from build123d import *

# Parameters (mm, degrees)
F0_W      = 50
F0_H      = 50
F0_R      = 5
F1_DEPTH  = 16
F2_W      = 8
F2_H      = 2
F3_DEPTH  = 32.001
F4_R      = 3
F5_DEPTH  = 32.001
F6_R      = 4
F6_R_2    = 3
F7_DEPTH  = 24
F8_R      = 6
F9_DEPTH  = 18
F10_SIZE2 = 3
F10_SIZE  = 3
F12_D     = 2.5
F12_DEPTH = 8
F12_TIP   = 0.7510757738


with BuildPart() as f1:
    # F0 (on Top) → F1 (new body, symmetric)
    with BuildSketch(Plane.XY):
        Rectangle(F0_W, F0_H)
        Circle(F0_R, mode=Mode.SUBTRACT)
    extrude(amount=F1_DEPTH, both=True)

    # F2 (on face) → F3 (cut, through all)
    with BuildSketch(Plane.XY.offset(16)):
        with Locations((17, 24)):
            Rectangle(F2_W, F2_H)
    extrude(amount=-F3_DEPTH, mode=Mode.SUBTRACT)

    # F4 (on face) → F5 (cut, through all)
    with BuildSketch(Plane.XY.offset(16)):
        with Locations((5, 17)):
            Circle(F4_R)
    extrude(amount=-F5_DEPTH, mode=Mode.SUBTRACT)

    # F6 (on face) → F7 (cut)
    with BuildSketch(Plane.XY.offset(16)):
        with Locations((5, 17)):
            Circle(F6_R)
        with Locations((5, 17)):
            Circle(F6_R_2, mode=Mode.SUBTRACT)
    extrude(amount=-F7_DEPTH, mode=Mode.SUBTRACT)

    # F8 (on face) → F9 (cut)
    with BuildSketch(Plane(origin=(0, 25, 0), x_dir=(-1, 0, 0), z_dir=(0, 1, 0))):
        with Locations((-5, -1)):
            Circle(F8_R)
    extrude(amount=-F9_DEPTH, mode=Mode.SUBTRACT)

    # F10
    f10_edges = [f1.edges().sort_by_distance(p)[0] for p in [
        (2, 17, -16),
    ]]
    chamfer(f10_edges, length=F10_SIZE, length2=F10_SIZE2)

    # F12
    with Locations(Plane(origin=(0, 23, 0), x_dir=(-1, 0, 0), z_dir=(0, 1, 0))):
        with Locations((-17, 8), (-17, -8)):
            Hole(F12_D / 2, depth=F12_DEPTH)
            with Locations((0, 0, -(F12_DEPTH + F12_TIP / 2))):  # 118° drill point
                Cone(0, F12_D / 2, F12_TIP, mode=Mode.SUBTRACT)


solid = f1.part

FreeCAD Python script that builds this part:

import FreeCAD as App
import Part
import Sketcher
Q = App.Units.Quantity


def edges_at(feature, points):
    """Names of the edges that pass closest to the given points."""
    edges = feature.Shape.Edges
    near = lambda p: min(range(len(edges)), key=lambda i: edges[i].distToShape(Part.Vertex(*p))[0])
    return sorted({f"Edge{near(p) + 1}" for p in points})


def add_polygon(sketch, points):
    """Adds a closed chain of lines whose ends are joined by coincident constraints."""
    first, n = sketch.GeometryCount, len(points)
    for a, b in zip(points, points[1:] + points[:1]):
        sketch.addGeometry(Part.LineSegment(App.Vector(*a, 0), App.Vector(*b, 0)), False)
    for i in range(n):
        sketch.addConstraint(Sketcher.Constraint("Coincident", first + i, 2, first + (i + 1) % n, 1))

doc = App.newDocument("Part")
params = doc.addObject("Spreadsheet::Sheet", "Params")
for row, (alias, value) in enumerate([
    ("sketch1_diameter", "10 mm"),
    ("sketch1_width", "50 mm"),
    ("pad1_length", "32 mm"),
    ("sketch2_width", "8 mm"),
    ("sketch2_height", "2 mm"),
    ("sketch3_diameter", "6 mm"),
    ("sketch4_diameter", "8 mm"),
    ("sketch4_diameter2", "6 mm"),
    ("pocket3_length", "24 mm"),
    ("sketch5_diameter", "12 mm"),
    ("pocket4_length", "18 mm"),
    ("chamfer_size", "3 mm"),
    ("chamfer_size2", "3 mm"),
    ("sketch6_diameter", "2.5 mm"),
    ("hole_diameter", "2.5 mm"),
    ("hole_depth", "8 mm"),
], start=1):
    params.set(f"A{row}", alias)
    params.set(f"B{row}", "=" + value)
    params.setAlias(f"B{row}", alias)

body = doc.addObject("PartDesign::Body", "Body")

sketch1 = body.newObject("Sketcher::SketchObject", "Sketch")
sketch1.AttachmentSupport = (doc.getObject("XY_Plane"), [""])
sketch1.MapMode = "FlatFace"
add_polygon(sketch1, [(-25, 25), (-25, -25), (25, -25), (25, 25)])
sketch1.addGeometry(Part.Circle(App.Vector(0, 0, 0), App.Vector(0, 0, 1), 5), False)
sketch1.addConstraint(Sketcher.Constraint("Vertical", 0))
sketch1.addConstraint(Sketcher.Constraint("Horizontal", 1))
sketch1.addConstraint(Sketcher.Constraint("Vertical", 2))
sketch1.addConstraint(Sketcher.Constraint("Horizontal", 3))
sketch1.addConstraint(Sketcher.Constraint("Coincident", 4, 3, -1, 1))
sketch1.addConstraint(Sketcher.Constraint("Symmetric", 0, 2, 2, 2, -1, 1))
sketch1.addConstraint(Sketcher.Constraint("Equal", 3, 0))
sketch1.addConstraint(Sketcher.Constraint("Diameter", 4, Q("10 mm")))
sketch1.addConstraint(Sketcher.Constraint("DistanceX", 1, 1, 1, 2, Q("50 mm")))
sketch1.setExpression("Constraints[11]", "Params.sketch1_diameter")
sketch1.setExpression("Constraints[12]", "Params.sketch1_width")
pad1 = body.newObject("PartDesign::Pad", "Pad")
pad1.Profile = sketch1
pad1.setExpression("Length", "Params.pad1_length")
pad1.Midplane = True

sketch2 = body.newObject("Sketcher::SketchObject", "Sketch001")
sketch2.AttachmentSupport = (doc.getObject("XY_Plane"), [""])
sketch2.MapMode = "FlatFace"
sketch2.AttachmentOffset = App.Placement(App.Vector(0, 0, 16), App.Rotation())
add_polygon(sketch2, [(13, 25), (13, 23), (21, 23), (21, 25)])
sketch2.addConstraint(Sketcher.Constraint("Vertical", 0))
sketch2.addConstraint(Sketcher.Constraint("Horizontal", 1))
sketch2.addConstraint(Sketcher.Constraint("Vertical", 2))
sketch2.addConstraint(Sketcher.Constraint("Horizontal", 3))
sketch2.addConstraint(Sketcher.Constraint("DistanceX", 1, 1, 1, 2, Q("8 mm")))
sketch2.addConstraint(Sketcher.Constraint("DistanceY", 0, 2, 0, 1, Q("2 mm")))
sketch2.addConstraint(Sketcher.Constraint("DistanceX", -1, 1, 0, 2, Q("13 mm")))
sketch2.addConstraint(Sketcher.Constraint("DistanceY", -1, 1, 0, 2, Q("23 mm")))
sketch2.setExpression("Constraints[8]", "Params.sketch2_width")
sketch2.setExpression("Constraints[9]", "Params.sketch2_height")
pocket1 = body.newObject("PartDesign::Pocket", "Pocket")
pocket1.Profile = sketch2
pocket1.Type = "ThroughAll"

sketch3 = body.newObject("Sketcher::SketchObject", "Sketch002")
sketch3.AttachmentSupport = (doc.getObject("XY_Plane"), [""])
sketch3.MapMode = "FlatFace"
sketch3.AttachmentOffset = App.Placement(App.Vector(0, 0, 16), App.Rotation())
sketch3.addGeometry(Part.Circle(App.Vector(5, 17, 0), App.Vector(0, 0, 1), 3), False)
sketch3.addConstraint(Sketcher.Constraint("Diameter", 0, Q("6 mm")))
sketch3.addConstraint(Sketcher.Constraint("DistanceX", -1, 1, 0, 3, Q("5 mm")))
sketch3.addConstraint(Sketcher.Constraint("DistanceY", -1, 1, 0, 3, Q("17 mm")))
sketch3.setExpression("Constraints[0]", "Params.sketch3_diameter")
pocket2 = body.newObject("PartDesign::Pocket", "Pocket001")
pocket2.Profile = sketch3
pocket2.Type = "ThroughAll"

sketch4 = body.newObject("Sketcher::SketchObject", "Sketch003")
sketch4.AttachmentSupport = (doc.getObject("XY_Plane"), [""])
sketch4.MapMode = "FlatFace"
sketch4.AttachmentOffset = App.Placement(App.Vector(0, 0, 16), App.Rotation())
sketch4.addGeometry(Part.Circle(App.Vector(5, 17, 0), App.Vector(0, 0, 1), 4), False)
sketch4.addGeometry(Part.Circle(App.Vector(5, 17, 0), App.Vector(0, 0, 1), 3), False)
sketch4.addConstraint(Sketcher.Constraint("Coincident", 1, 3, 0, 3))
sketch4.addConstraint(Sketcher.Constraint("Diameter", 0, Q("8 mm")))
sketch4.addConstraint(Sketcher.Constraint("Diameter", 1, Q("6 mm")))
sketch4.addConstraint(Sketcher.Constraint("DistanceX", -1, 1, 0, 3, Q("5 mm")))
sketch4.addConstraint(Sketcher.Constraint("DistanceY", -1, 1, 0, 3, Q("17 mm")))
sketch4.setExpression("Constraints[1]", "Params.sketch4_diameter")
sketch4.setExpression("Constraints[2]", "Params.sketch4_diameter2")
pocket3 = body.newObject("PartDesign::Pocket", "Pocket002")
pocket3.Profile = sketch4
pocket3.setExpression("Length", "Params.pocket3_length")

sketch5 = body.newObject("Sketcher::SketchObject", "Sketch004")
sketch5.AttachmentSupport = (doc.getObject("XZ_Plane"), [""])
sketch5.MapMode = "FlatFace"
sketch5.AttachmentOffset = App.Placement(App.Vector(0, 0, -25), App.Rotation())
sketch5.addGeometry(Part.Circle(App.Vector(5, -1, 0), App.Vector(0, 0, 1), 6), False)
sketch5.addConstraint(Sketcher.Constraint("Diameter", 0, Q("12 mm")))
sketch5.addConstraint(Sketcher.Constraint("DistanceX", -1, 1, 0, 3, Q("5 mm")))
sketch5.addConstraint(Sketcher.Constraint("DistanceY", 0, 3, -1, 1, Q("1 mm")))
sketch5.setExpression("Constraints[0]", "Params.sketch5_diameter")
pocket4 = body.newObject("PartDesign::Pocket", "Pocket003")
pocket4.Profile = sketch5
pocket4.setExpression("Length", "Params.pocket4_length")
pocket4.Reversed = True
doc.recompute()

chamfer = body.newObject("PartDesign::Chamfer", "Chamfer")
chamfer.Base = (pocket4, edges_at(pocket4, [(2, 17, -16)]))
chamfer.ChamferType = "Two distances"
chamfer.setExpression("Size", "Params.chamfer_size")
chamfer.setExpression("Size2", "Params.chamfer_size2")

sketch6 = body.newObject("Sketcher::SketchObject", "Sketch005")
sketch6.AttachmentSupport = (doc.getObject("XZ_Plane"), [""])
sketch6.MapMode = "FlatFace"
sketch6.AttachmentOffset = App.Placement(App.Vector(0, 0, -23), App.Rotation())
sketch6.addGeometry(Part.Circle(App.Vector(17, 8, 0), App.Vector(0, 0, 1), 1.2), False)
sketch6.addGeometry(Part.Circle(App.Vector(17, -8, 0), App.Vector(0, 0, 1), 1.2), False)
sketch6.addConstraint(Sketcher.Constraint("Equal", 0, 1))
sketch6.addConstraint(Sketcher.Constraint("Symmetric", 0, 3, 1, 3, -1))
sketch6.addConstraint(Sketcher.Constraint("Diameter", 0, Q("2.5 mm")))
sketch6.addConstraint(Sketcher.Constraint("DistanceX", -1, 1, 0, 3, Q("17 mm")))
sketch6.addConstraint(Sketcher.Constraint("DistanceY", -1, 1, 0, 3, Q("8 mm")))
sketch6.setExpression("Constraints[2]", "Params.sketch6_diameter")
doc.recompute()
hole = body.newObject("PartDesign::Hole", "Hole")
hole.Profile = sketch6
hole.ThreadType = "None"
hole.setExpression("Diameter", "Params.hole_diameter")
hole.DepthType = "Dimension"
hole.setExpression("Depth", "Params.hole_depth")
hole.DrillPoint = "Angled"
hole.DrillPointAngle = 118
hole.Reversed = True

doc.recompute()
